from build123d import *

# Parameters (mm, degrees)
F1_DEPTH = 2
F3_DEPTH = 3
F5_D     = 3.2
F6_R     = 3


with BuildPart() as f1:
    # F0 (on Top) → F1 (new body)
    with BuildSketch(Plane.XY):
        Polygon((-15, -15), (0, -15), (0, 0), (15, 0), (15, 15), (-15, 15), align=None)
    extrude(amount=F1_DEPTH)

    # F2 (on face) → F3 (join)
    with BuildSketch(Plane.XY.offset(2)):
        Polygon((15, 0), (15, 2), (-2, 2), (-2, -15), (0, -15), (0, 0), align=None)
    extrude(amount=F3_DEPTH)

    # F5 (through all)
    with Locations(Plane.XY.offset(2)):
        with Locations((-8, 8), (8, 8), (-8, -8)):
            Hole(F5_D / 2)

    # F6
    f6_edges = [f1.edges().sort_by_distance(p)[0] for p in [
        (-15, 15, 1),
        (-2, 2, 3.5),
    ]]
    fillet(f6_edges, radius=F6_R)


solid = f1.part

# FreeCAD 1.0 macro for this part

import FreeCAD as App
import Part
import Sketcher

V = App.Vector
Q = App.Units.Quantity


def edges_at(feature, points):
    """Names of the edges that pass closest to the given points."""
    edges = feature.Shape.Edges
    near = lambda p: min(range(len(edges)), key=lambda i: edges[i].distToShape(Part.Vertex(*p))[0])
    return sorted({f"Edge{near(p) + 1}" for p in points})

doc = App.newDocument("Part")
params = doc.addObject("Spreadsheet::Sheet", "Params")
for row, (alias, value) in enumerate([
    ("sketch1_width", "15 mm"),
    ("pad1_length", "2 mm"),
    ("sketch2_width", "17 mm"),
    ("sketch2_width2", "2 mm"),
    ("pad2_length", "3 mm"),
    ("sketch3_diameter", "3.2 mm"),
    ("hole_diameter", "3.2 mm"),
    ("fillet_radius", "3 mm"),
], start=1):
    params.set(f"A{row}", alias)
    params.set(f"B{row}", "=" + value)
    params.setAlias(f"B{row}", alias)

body = doc.addObject("PartDesign::Body", "Body")

# Sketch on XY plane
sketch1 = body.newObject("Sketcher::SketchObject", "Sketch")
sketch1.AttachmentSupport = (doc.getObject("XY_Plane"), [""])
sketch1.MapMode = "FlatFace"
sketch1.addGeometry([
    Part.LineSegment(V(-15, -15, 0), V(0, -15, 0)),  # 0
    Part.LineSegment(V(0, -15, 0), V(0, 0, 0)),  # 1
    Part.LineSegment(V(0, 0, 0), V(15, 0, 0)),  # 2
    Part.LineSegment(V(15, 0, 0), V(15, 15, 0)),  # 3
    Part.LineSegment(V(15, 15, 0), V(-15, 15, 0)),  # 4
    Part.LineSegment(V(-15, 15, 0), V(-15, -15, 0)),  # 5
], False)
sketch1.addConstraint([
    Sketcher.Constraint("Coincident", 0, 2, 1, 1),
    Sketcher.Constraint("Coincident", 1, 2, 2, 1),
    Sketcher.Constraint("Coincident", 2, 2, 3, 1),
    Sketcher.Constraint("Coincident", 3, 2, 4, 1),
    Sketcher.Constraint("Coincident", 4, 2, 5, 1),
    Sketcher.Constraint("Coincident", 5, 2, 0, 1),
    Sketcher.Constraint("Horizontal", 0),
    Sketcher.Constraint("Vertical", 1),
    Sketcher.Constraint("Horizontal", 2),
    Sketcher.Constraint("Vertical", 3),
    Sketcher.Constraint("Horizontal", 4),
    Sketcher.Constraint("Vertical", 5),
    Sketcher.Constraint("Coincident", 1, 2, -1, 1),
    Sketcher.Constraint("Symmetric", 3, 2, 5, 2, -1, 1),
    Sketcher.Constraint("Equal", 2, 1),
    Sketcher.Constraint("DistanceX", 0, 1, 0, 2, Q("15 mm")),
])
sketch1.setExpression("Constraints[15]", "Params.sketch1_width")
pad1 = body.newObject("PartDesign::Pad", "Pad")
pad1.Profile = sketch1
pad1.setExpression("Length", "Params.pad1_length")

# Sketch on XY plane
sketch2 = body.newObject("Sketcher::SketchObject", "Sketch001")
sketch2.AttachmentSupport = (doc.getObject("XY_Plane"), [""])
sketch2.MapMode = "FlatFace"
sketch2.AttachmentOffset = App.Placement(V(0, 0, 2), App.Rotation())
sketch2.addGeometry([
    Part.LineSegment(V(15, 0, 0), V(15, 2, 0)),  # 0
    Part.LineSegment(V(15, 2, 0), V(-2, 2, 0)),  # 1
    Part.LineSegment(V(-2, 2, 0), V(-2, -15, 0)),  # 2
    Part.LineSegment(V(-2, -15, 0), V(0, -15, 0)),  # 3
    Part.LineSegment(V(0, -15, 0), V(0, 0, 0)),  # 4
    Part.LineSegment(V(0, 0, 0), V(15, 0, 0)),  # 5
], False)
sketch2.addConstraint([
    Sketcher.Constraint("Coincident", 0, 2, 1, 1),
    Sketcher.Constraint("Coincident", 1, 2, 2, 1),
    Sketcher.Constraint("Coincident", 2, 2, 3, 1),
    Sketcher.Constraint("Coincident", 3, 2, 4, 1),
    Sketcher.Constraint("Coincident", 4, 2, 5, 1),
    Sketcher.Constraint("Coincident", 5, 2, 0, 1),
    Sketcher.Constraint("Vertical", 0),
    Sketcher.Constraint("Horizontal", 1),
    Sketcher.Constraint("Vertical", 2),
    Sketcher.Constraint("Horizontal", 3),
    Sketcher.Constraint("Vertical", 4),
    Sketcher.Constraint("Horizontal", 5),
    Sketcher.Constraint("Coincident", 4, 2, -1, 1),
    Sketcher.Constraint("Equal", 3, 0),
    Sketcher.Constraint("Equal", 1, 2),
    Sketcher.Constraint("DistanceX", 1, 2, 1, 1, Q("17 mm")),
    Sketcher.Constraint("DistanceX", 3, 1, 3, 2, Q("2 mm")),
])
sketch2.setExpression("Constraints[15]", "Params.sketch2_width")
sketch2.setExpression("Constraints[16]", "Params.sketch2_width2")
pad2 = body.newObject("PartDesign::Pad", "Pad001")
pad2.Profile = sketch2
pad2.setExpression("Length", "Params.pad2_length")

# Sketch on XY plane
sketch3 = body.newObject("Sketcher::SketchObject", "Sketch002")
sketch3.AttachmentSupport = (doc.getObject("XY_Plane"), [""])
sketch3.MapMode = "FlatFace"
sketch3.AttachmentOffset = App.Placement(V(0, 0, 2), App.Rotation())
sketch3.addGeometry([
    Part.Circle(V(-8, 8, 0), V(0, 0, 1), 1.6),
    Part.Circle(V(8, 8, 0), V(0, 0, 1), 1.6),
    Part.Circle(V(-8, -8, 0), V(0, 0, 1), 1.6),
], False)
sketch3.addConstraint([
    Sketcher.Constraint("Equal", 0, 1),
    Sketcher.Constraint("Equal", 1, 2),
    Sketcher.Constraint("Symmetric", 1, 3, 2, 3, -1, 1),
    Sketcher.Constraint("Symmetric", 0, 3, 1, 3, -2),
    Sketcher.Constraint("Diameter", 0, Q("3.2 mm")),
    Sketcher.Constraint("DistanceX", 0, 3, -1, 1, Q("8 mm")),
    Sketcher.Constraint("DistanceY", -1, 1, 0, 3, Q("8 mm")),
])
sketch3.setExpression("Constraints[4]", "Params.sketch3_diameter")
doc.recompute()
hole = body.newObject("PartDesign::Hole", "Hole")
hole.Profile = sketch3
hole.ThreadType = "None"
hole.setExpression("Diameter", "Params.hole_diameter")
hole.DepthType = "ThroughAll"
doc.recompute()

fillet = body.newObject("PartDesign::Fillet", "Fillet")
fillet.Base = (hole, edges_at(hole, [(-15, 15, 1), (-2, 2, 3.5)]))
fillet.setExpression("Radius", "Params.fillet_radius")

doc.recompute()
